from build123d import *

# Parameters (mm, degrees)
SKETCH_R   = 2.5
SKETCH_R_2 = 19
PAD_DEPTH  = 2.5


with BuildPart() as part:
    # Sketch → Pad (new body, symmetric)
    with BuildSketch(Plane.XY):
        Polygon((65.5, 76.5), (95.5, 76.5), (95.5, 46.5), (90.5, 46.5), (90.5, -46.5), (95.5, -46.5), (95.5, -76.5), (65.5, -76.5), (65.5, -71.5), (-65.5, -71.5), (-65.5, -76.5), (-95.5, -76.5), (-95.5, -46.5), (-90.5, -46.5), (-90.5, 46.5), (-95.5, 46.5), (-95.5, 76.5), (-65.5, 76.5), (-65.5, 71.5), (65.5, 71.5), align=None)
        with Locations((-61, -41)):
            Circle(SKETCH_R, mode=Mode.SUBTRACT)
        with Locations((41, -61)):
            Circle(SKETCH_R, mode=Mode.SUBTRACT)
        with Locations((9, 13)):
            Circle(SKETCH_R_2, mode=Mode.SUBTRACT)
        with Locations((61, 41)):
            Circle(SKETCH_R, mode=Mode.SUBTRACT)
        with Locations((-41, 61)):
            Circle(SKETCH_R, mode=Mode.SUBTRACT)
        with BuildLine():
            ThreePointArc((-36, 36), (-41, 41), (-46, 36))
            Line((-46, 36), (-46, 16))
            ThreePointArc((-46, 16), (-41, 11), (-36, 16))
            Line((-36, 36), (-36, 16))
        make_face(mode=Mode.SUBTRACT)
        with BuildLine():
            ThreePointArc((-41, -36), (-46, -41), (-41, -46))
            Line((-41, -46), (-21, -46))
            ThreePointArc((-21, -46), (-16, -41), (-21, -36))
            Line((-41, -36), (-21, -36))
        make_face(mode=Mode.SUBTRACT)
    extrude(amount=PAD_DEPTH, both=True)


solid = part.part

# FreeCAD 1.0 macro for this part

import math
import FreeCAD as App
import Part
import Sketcher
Q = App.Units.Quantity


def add_polygon(sketch, points):
    """Adds a closed chain of lines whose ends are joined by coincident constraints."""
    first, n = sketch.GeometryCount, len(points)
    for a, b in zip(points, points[1:] + points[:1]):
        sketch.addGeometry(Part.LineSegment(App.Vector(*a, 0), App.Vector(*b, 0)), False)
    for i in range(n):
        sketch.addConstraint(Sketcher.Constraint("Coincident", first + i, 2, first + (i + 1) % n, 1))

doc = App.newDocument("Part")
body = doc.addObject("PartDesign::Body", "Body")

# Sketch on XY plane
sketch1 = body.newObject("Sketcher::SketchObject", "Sketch")
sketch1.AttachmentSupport = (doc.getObject("XY_Plane"), [""])
sketch1.MapMode = "FlatFace"
add_polygon(sketch1, [(95.5, 76.5), (65.5, 76.5), (65.5, 71.5), (-65.5, 71.5), (-65.5, 76.5), (-95.5, 76.5), (-95.5, 46.5), (-90.5, 46.5), (-90.5, -46.5), (-95.5, -46.5), (-95.5, -76.5), (-65.5, -76.5), (-65.5, -71.5), (65.5, -71.5), (65.5, -76.5), (95.5, -76.5), (95.5, -46.5), (90.5, -46.5), (90.5, 46.5), (95.5, 46.5)])  # lines 0-19
sketch1.addGeometry(Part.Circle(App.Vector(41, -61, 0), App.Vector(0, 0, 1), 2.5), False)  # 20
sketch1.addGeometry(Part.LineSegment(App.Vector(-41, -36, 0), App.Vector(-21, -36, 0)), False)  # 21
sketch1.addGeometry(Part.ArcOfCircle(Part.Circle(App.Vector(-21, -41, 0), App.Vector(0, 0, 1), 5), math.radians(-90), math.radians(90)), False)  # 22
sketch1.addGeometry(Part.LineSegment(App.Vector(-21, -46, 0), App.Vector(-41, -46, 0)), False)  # 23
sketch1.addGeometry(Part.ArcOfCircle(Part.Circle(App.Vector(-41, -41, 0), App.Vector(0, 0, 1), 5), math.radians(90), math.radians(270)), False)  # 24
sketch1.addGeometry(Part.Circle(App.Vector(-61, -41, 0), App.Vector(0, 0, 1), 2.5), False)  # 25
sketch1.addGeometry(Part.Circle(App.Vector(9, 13, 0), App.Vector(0, 0, 1), 19), False)  # 26
sketch1.addGeometry(Part.Circle(App.Vector(61, 41, 0), App.Vector(0, 0, 1), 2.5), False)  # 27
sketch1.addGeometry(Part.LineSegment(App.Vector(-36, 36, 0), App.Vector(-36, 16, 0)), False)  # 28
sketch1.addGeometry(Part.ArcOfCircle(Part.Circle(App.Vector(-41, 16, 0), App.Vector(0, 0, 1), 5), math.radians(180), math.radians(360)), False)  # 29
sketch1.addGeometry(Part.LineSegment(App.Vector(-46, 16, 0), App.Vector(-46, 36, 0)), False)  # 30
sketch1.addGeometry(Part.ArcOfCircle(Part.Circle(App.Vector(-41, 36, 0), App.Vector(0, 0, 1), 5), math.radians(0), math.radians(180)), False)  # 31
sketch1.addGeometry(Part.Circle(App.Vector(-41, 61, 0), App.Vector(0, 0, 1), 2.5), False)  # 32
sketch1.addConstraint([
    Sketcher.Constraint("Tangent", 21, 2, 22, 2),
    Sketcher.Constraint("Tangent", 22, 1, 23, 1),
    Sketcher.Constraint("Tangent", 23, 2, 24, 2),
    Sketcher.Constraint("Tangent", 24, 1, 21, 1),
    Sketcher.Constraint("Tangent", 28, 2, 29, 2),
    Sketcher.Constraint("Tangent", 29, 1, 30, 1),
    Sketcher.Constraint("Tangent", 30, 2, 31, 2),
    Sketcher.Constraint("Tangent", 31, 1, 28, 1),
    Sketcher.Constraint("Horizontal", 0),
    Sketcher.Constraint("Vertical", 1),
    Sketcher.Constraint("Horizontal", 2),
    Sketcher.Constraint("Vertical", 3),
    Sketcher.Constraint("Horizontal", 4),
    Sketcher.Constraint("Vertical", 5),
    Sketcher.Constraint("Horizontal", 6),
    Sketcher.Constraint("Vertical", 7),
    Sketcher.Constraint("Horizontal", 8),
    Sketcher.Constraint("Vertical", 9),
    Sketcher.Constraint("Horizontal", 10),
    Sketcher.Constraint("Vertical", 11),
    Sketcher.Constraint("Horizontal", 12),
    Sketcher.Constraint("Vertical", 13),
    Sketcher.Constraint("Horizontal", 14),
    Sketcher.Constraint("Vertical", 15),
    Sketcher.Constraint("Horizontal", 16),
    Sketcher.Constraint("Vertical", 17),
    Sketcher.Constraint("Horizontal", 18),
    Sketcher.Constraint("Vertical", 19),
    Sketcher.Constraint("Horizontal", 21),
    Sketcher.Constraint("Horizontal", 23),
    Sketcher.Constraint("Vertical", 28),
    Sketcher.Constraint("Vertical", 30),
    Sketcher.Constraint("Equal", 20, 25),
    Sketcher.Constraint("Equal", 25, 27),
    Sketcher.Constraint("Equal", 24, 29),
    Sketcher.Constraint("Equal", 27, 32),
    Sketcher.Constraint("Symmetric", 25, 3, 27, 3, -1, 1),
    Sketcher.Constraint("Symmetric", 20, 3, 32, 3, -1, 1),
    Sketcher.Constraint("Symmetric", 0, 2, 10, 2, -1, 1),
    Sketcher.Constraint("Symmetric", 2, 2, 12, 2, -1, 1),
    Sketcher.Constraint("Symmetric", 4, 2, 14, 2, -1, 1),
    Sketcher.Constraint("Symmetric", 6, 2, 16, 2, -1, 1),
    Sketcher.Constraint("Symmetric", 8, 2, 18, 2, -1, 1),
    Sketcher.Constraint("Symmetric", 0, 2, 3, 2, -2),
    Sketcher.Constraint("Symmetric", 8, 2, 15, 2, -2),
    Sketcher.Constraint("Horizontal", 24, 3, 25, 3),
    Sketcher.Constraint("Vertical", 24, 3, 29, 3),
    Sketcher.Constraint("Vertical", 31, 3, 32, 3),
    Sketcher.Constraint("Equal", 18, 1),
    Sketcher.Constraint("Equal", 14, 5),
    Sketcher.Constraint("Equal", 23, 28),
    Sketcher.Constraint("Diameter", 20, Q("5 mm")),
    Sketcher.Constraint("Diameter", 26, Q("38 mm")),
    Sketcher.Constraint("Radius", 22, Q("5 mm")),
    Sketcher.Constraint("DistanceX", 0, 2, 0, 1, Q("30 mm")),
    Sketcher.Constraint("DistanceX", 2, 2, 2, 1, Q("131 mm")),
    Sketcher.Constraint("DistanceX", 6, 1, 6, 2, Q("5 mm")),
    Sketcher.Constraint("DistanceX", 21, 1, 21, 2, Q("20 mm")),
    Sketcher.Constraint("DistanceY", 7, 2, 7, 1, Q("93 mm")),
    Sketcher.Constraint("DistanceX", -1, 1, 20, 3, Q("41 mm")),
    Sketcher.Constraint("DistanceY", 20, 3, -1, 1, Q("61 mm")),
    Sketcher.Constraint("DistanceY", 22, 3, -1, 1, Q("41 mm")),
    Sketcher.Constraint("DistanceX", 25, 3, -1, 1, Q("61 mm")),
    Sketcher.Constraint("DistanceX", -1, 1, 26, 3, Q("9 mm")),
    Sketcher.Constraint("DistanceY", -1, 1, 26, 3, Q("13 mm")),
    Sketcher.Constraint("DistanceY", -1, 1, 29, 3, Q("16 mm")),
])
pad1 = body.newObject("PartDesign::Pad", "Pad")
pad1.Profile = sketch1
pad1.Length = 5
pad1.Midplane = True

doc.recompute()
